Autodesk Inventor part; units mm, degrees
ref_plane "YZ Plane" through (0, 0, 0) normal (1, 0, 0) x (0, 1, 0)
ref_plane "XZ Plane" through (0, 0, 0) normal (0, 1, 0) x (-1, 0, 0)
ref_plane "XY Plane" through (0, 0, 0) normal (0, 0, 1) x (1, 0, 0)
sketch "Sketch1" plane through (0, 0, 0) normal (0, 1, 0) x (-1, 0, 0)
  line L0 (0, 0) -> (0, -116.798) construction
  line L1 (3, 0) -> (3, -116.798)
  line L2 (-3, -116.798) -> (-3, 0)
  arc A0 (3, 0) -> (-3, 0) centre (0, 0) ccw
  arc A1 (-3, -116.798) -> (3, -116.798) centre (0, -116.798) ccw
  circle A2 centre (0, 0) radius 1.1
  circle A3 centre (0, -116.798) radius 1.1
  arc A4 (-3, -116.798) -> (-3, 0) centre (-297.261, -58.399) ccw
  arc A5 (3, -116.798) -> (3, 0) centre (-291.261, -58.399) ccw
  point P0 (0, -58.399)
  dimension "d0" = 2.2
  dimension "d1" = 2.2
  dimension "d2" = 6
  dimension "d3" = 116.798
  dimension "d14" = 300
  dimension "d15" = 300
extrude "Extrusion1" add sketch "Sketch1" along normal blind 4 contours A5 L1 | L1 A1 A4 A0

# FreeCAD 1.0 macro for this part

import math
import FreeCAD as App
import Part
import Sketcher
Q = App.Units.Quantity

doc = App.newDocument("Part")
body = doc.addObject("PartDesign::Body", "Body")

# Sketch on XZ plane
sketch1 = body.newObject("Sketcher::SketchObject", "Sketch")
sketch1.AttachmentSupport = (doc.getObject("XZ_Plane"), [""])
sketch1.MapMode = "FlatFace"
sketch1.addGeometry([
    Part.ArcOfCircle(Part.Circle(App.Vector(291.3, -58.4, 0), App.Vector(0, 0, 1), 300), math.radians(169), math.radians(191)),  # 0
    Part.ArcOfCircle(Part.Circle(App.Vector(0, 0, 0), App.Vector(0, 0, 1), 3), math.radians(0), math.radians(180)),  # 1
    Part.ArcOfCircle(Part.Circle(App.Vector(297.3, -58.4, 0), App.Vector(0, 0, 1), 300), math.radians(169), math.radians(191)),  # 2
    Part.ArcOfCircle(Part.Circle(App.Vector(0, -116.8, 0), App.Vector(0, 0, 1), 3), math.radians(180), math.radians(360)),  # 3
    Part.Circle(App.Vector(0, 0, 0), App.Vector(0, 0, 1), 1.1),  # 4
    Part.Circle(App.Vector(0, -116.8, 0), App.Vector(0, 0, 1), 1.1),  # 5
], False)
sketch1.addConstraint([
    Sketcher.Constraint("Coincident", 0, 1, 1, 2),
    Sketcher.Constraint("Coincident", 1, 1, 2, 1),
    Sketcher.Constraint("Coincident", 2, 2, 3, 2),
    Sketcher.Constraint("Coincident", 3, 1, 0, 2),
    Sketcher.Constraint("Coincident", 1, 3, -1, 1),
    Sketcher.Constraint("Coincident", 4, 3, -1, 1),
    Sketcher.Constraint("Coincident", 5, 3, 3, 3),
    Sketcher.Constraint("Equal", 0, 2),
    Sketcher.Constraint("Equal", 1, 3),
    Sketcher.Constraint("Equal", 4, 5),
    Sketcher.Constraint("Symmetric", 2, 2, 3, 1, -2),
    Sketcher.Constraint("PointOnObject", 0, 1, -1),
    Sketcher.Constraint("PointOnObject", 1, 1, -1),
    Sketcher.Constraint("Horizontal", 5, 3, 2, 2),
    Sketcher.Constraint("Radius", 0, Q("300 mm")),
    Sketcher.Constraint("Radius", 1, Q("3 mm")),
    Sketcher.Constraint("Diameter", 4, Q("2.2 mm")),
    Sketcher.Constraint("DistanceY", 3, 3, -1, 1, Q("116.798 mm")),
])
pad1 = body.newObject("PartDesign::Pad", "Pad")
pad1.Profile = sketch1
pad1.Length = 4
pad1.Reversed = True

doc.recompute()
